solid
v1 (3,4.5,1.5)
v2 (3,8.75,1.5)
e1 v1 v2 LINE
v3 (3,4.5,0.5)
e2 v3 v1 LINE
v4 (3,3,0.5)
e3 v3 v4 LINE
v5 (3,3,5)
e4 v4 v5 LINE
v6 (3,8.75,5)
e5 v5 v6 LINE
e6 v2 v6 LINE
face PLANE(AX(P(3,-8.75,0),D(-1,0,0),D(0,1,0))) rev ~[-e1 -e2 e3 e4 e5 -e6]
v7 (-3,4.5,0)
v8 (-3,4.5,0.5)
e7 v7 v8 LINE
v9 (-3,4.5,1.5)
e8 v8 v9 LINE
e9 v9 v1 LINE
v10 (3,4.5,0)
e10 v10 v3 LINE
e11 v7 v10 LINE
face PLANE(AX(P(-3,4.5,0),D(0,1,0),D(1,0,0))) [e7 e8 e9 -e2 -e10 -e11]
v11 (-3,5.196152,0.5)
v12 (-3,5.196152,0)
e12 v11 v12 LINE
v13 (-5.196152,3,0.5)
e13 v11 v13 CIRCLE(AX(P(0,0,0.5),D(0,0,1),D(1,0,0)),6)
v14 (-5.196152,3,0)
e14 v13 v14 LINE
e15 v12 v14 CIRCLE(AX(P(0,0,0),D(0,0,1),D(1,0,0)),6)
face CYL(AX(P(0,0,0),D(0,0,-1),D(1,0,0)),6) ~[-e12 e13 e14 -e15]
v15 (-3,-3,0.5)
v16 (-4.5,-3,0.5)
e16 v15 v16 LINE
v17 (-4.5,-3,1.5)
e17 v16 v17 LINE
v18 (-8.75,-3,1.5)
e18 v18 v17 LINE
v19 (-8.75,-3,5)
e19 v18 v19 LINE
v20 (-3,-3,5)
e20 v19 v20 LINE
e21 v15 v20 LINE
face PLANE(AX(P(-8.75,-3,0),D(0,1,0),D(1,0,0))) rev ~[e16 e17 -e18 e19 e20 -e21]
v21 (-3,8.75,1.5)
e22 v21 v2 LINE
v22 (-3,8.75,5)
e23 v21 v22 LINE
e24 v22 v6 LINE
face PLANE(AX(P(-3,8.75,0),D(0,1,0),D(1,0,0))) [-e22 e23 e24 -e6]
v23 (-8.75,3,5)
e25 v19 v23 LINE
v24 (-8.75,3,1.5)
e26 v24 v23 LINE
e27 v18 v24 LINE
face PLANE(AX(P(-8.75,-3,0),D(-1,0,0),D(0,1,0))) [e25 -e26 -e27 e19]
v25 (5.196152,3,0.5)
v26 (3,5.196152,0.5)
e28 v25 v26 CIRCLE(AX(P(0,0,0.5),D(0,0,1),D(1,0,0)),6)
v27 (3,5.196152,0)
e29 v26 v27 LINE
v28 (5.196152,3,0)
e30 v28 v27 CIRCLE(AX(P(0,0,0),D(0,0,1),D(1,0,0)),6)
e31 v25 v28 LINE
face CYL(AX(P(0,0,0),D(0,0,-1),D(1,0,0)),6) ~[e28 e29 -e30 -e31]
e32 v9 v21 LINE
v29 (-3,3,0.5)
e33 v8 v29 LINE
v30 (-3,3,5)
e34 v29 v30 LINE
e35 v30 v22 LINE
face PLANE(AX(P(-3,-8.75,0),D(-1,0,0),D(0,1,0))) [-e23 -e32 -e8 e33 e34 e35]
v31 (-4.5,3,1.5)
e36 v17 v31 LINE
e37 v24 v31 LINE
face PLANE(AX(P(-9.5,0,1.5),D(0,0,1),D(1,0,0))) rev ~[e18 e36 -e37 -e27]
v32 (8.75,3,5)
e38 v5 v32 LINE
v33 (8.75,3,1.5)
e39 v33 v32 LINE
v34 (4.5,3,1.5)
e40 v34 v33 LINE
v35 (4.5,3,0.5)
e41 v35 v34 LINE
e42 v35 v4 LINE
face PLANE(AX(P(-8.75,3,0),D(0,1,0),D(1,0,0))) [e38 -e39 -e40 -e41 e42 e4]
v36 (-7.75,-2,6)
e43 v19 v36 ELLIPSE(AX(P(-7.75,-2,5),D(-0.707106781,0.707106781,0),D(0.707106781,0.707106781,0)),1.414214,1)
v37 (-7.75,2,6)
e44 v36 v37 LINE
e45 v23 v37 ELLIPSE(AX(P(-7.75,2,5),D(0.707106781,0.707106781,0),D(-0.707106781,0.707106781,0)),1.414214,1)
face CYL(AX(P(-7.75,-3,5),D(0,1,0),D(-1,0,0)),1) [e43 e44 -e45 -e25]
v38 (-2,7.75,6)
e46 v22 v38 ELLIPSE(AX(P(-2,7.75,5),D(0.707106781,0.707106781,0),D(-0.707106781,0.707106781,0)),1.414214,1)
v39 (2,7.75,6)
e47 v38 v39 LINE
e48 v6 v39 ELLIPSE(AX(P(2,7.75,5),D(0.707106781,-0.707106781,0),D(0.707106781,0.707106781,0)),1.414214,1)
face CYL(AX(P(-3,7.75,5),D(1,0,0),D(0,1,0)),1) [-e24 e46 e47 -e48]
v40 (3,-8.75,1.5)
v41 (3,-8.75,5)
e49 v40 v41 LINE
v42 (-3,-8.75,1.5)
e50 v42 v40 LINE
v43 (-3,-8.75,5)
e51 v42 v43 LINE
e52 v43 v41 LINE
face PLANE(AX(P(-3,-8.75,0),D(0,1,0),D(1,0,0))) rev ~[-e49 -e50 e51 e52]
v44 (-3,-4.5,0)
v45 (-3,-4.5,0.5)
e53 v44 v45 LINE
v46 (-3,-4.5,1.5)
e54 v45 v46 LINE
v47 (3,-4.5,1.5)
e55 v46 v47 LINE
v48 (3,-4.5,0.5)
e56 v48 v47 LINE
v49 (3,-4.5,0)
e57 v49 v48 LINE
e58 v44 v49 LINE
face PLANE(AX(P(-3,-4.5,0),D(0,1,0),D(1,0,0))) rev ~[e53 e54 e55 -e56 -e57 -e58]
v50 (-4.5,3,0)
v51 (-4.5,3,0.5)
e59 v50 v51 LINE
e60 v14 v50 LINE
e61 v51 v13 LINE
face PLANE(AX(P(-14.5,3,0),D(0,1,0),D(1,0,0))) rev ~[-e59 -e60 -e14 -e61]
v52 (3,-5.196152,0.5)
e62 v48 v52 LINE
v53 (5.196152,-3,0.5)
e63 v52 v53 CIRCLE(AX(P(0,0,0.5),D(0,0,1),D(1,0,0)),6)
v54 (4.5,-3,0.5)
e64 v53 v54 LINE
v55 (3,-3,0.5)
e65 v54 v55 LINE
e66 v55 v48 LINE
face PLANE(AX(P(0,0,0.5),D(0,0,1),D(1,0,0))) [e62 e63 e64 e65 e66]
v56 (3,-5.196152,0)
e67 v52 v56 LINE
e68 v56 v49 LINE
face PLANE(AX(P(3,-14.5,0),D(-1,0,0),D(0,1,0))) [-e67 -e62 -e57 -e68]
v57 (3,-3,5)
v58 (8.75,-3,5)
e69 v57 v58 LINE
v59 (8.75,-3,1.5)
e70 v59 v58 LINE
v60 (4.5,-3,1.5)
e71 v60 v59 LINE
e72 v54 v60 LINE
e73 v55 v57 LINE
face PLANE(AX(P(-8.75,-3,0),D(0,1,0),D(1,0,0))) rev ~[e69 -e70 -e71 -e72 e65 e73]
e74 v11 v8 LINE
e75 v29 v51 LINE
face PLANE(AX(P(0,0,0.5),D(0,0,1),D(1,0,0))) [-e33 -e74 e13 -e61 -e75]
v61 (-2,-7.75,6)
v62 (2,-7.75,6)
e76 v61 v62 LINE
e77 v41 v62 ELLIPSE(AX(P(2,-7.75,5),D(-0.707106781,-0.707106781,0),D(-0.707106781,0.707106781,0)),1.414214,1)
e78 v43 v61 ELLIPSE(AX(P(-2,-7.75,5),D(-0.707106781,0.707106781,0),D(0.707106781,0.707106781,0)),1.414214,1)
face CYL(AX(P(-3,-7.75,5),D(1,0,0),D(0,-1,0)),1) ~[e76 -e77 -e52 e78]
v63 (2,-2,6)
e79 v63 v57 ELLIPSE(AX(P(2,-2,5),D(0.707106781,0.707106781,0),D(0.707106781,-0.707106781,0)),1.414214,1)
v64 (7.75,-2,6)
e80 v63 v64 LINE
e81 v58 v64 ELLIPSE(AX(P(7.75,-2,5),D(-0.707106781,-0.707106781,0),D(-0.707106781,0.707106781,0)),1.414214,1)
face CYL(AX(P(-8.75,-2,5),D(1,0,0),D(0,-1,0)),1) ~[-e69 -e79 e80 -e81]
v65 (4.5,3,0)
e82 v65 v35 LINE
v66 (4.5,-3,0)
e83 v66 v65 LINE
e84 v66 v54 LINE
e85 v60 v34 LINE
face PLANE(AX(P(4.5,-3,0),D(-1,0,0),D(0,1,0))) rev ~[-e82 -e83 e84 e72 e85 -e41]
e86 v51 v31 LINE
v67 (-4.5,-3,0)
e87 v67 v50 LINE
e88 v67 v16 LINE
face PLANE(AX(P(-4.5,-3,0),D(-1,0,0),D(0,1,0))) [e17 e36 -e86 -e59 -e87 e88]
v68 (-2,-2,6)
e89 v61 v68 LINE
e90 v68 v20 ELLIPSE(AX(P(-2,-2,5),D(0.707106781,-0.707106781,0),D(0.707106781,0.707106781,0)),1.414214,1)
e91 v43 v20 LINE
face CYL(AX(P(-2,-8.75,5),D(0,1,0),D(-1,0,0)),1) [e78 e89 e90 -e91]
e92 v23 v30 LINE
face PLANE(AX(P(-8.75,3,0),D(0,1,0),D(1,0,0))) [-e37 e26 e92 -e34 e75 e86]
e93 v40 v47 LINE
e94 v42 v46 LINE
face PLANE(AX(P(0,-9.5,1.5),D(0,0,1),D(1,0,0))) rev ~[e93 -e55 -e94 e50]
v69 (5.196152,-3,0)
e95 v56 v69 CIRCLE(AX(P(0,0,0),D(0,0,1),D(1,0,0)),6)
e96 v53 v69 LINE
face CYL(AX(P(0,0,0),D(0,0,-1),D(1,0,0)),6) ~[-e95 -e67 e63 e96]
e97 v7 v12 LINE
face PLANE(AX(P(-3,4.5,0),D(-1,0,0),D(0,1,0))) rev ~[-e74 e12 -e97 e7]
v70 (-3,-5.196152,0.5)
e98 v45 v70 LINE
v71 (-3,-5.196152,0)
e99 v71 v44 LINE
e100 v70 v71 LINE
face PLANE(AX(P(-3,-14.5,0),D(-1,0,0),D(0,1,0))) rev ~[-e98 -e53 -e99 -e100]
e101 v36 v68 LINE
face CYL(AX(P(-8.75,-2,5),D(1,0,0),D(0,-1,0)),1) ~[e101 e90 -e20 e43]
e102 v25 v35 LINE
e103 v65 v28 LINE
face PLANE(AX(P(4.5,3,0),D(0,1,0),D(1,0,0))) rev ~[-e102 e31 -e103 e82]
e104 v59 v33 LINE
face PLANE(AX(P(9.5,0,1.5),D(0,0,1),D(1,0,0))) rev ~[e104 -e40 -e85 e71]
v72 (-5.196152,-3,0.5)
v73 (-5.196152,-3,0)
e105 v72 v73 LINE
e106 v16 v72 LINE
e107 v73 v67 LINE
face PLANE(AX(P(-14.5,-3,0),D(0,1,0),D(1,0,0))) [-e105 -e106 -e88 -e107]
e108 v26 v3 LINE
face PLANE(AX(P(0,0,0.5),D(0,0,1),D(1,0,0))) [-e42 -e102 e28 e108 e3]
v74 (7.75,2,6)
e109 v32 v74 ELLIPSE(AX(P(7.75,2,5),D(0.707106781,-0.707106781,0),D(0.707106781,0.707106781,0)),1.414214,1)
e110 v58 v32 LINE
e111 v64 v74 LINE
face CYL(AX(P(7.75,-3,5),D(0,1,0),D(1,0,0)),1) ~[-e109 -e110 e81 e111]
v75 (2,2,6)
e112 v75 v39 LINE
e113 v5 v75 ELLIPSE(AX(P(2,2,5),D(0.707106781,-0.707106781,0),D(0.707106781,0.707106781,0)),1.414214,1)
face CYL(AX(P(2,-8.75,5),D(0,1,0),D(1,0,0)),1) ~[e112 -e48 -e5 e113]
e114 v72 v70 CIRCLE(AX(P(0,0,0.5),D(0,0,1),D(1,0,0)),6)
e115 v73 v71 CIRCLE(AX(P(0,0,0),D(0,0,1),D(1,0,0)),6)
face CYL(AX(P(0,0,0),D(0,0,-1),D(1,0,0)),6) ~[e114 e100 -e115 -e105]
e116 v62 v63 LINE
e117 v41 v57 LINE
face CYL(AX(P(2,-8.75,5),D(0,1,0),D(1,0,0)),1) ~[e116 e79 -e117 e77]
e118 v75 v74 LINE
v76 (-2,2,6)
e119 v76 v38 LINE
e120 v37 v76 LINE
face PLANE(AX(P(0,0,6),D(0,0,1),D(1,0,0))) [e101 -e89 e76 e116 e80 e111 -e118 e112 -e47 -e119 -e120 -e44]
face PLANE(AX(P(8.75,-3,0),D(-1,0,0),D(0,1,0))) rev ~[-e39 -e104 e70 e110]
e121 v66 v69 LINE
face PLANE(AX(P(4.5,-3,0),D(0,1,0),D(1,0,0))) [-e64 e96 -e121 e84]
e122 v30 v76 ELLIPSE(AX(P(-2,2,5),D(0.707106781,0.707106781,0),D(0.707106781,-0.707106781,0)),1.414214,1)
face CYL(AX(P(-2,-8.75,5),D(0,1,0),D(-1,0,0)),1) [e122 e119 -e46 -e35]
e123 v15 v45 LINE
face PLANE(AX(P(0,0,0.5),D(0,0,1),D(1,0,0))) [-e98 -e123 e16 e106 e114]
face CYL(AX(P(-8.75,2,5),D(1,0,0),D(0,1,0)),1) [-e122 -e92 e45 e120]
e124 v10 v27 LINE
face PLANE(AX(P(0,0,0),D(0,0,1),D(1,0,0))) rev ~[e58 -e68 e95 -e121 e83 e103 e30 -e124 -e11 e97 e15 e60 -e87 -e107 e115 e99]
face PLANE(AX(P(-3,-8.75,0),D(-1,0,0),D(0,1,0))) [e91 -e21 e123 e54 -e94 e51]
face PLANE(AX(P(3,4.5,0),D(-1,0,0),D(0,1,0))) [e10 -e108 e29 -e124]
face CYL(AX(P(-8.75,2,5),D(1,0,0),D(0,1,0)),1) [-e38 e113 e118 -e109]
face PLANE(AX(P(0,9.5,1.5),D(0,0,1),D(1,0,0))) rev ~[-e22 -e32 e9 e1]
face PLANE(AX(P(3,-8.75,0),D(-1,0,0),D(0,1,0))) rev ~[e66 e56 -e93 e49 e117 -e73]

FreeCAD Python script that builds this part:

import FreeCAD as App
import Part
import Sketcher

V = App.Vector
Q = App.Units.Quantity


def edges_at(feature, points):
    """Names of the edges that pass closest to the given points."""
    edges = feature.Shape.Edges
    near = lambda p: min(range(len(edges)), key=lambda i: edges[i].distToShape(Part.Vertex(*p))[0])
    return sorted({f"Edge{near(p) + 1}" for p in points})

doc = App.newDocument("Part")
body = doc.addObject("PartDesign::Body", "Body")

# Sketch on XY plane
sketch1 = body.newObject("Sketcher::SketchObject", "Sketch")
sketch1.AttachmentSupport = (doc.getObject("XY_Plane"), [""])
sketch1.MapMode = "FlatFace"
sketch1.addGeometry([
    Part.LineSegment(V(4, 3, 0), V(4, -3, 0)),
    Part.LineSegment(V(4, -3, 0), V(14, -3, 0)),
    Part.LineSegment(V(14, -3, 0), V(14, 3, 0)),
    Part.LineSegment(V(14, 3, 0), V(4, 3, 0)),
], False)
sketch1.addConstraint([
    Sketcher.Constraint("Coincident", 0, 2, 1, 1),
    Sketcher.Constraint("Coincident", 1, 2, 2, 1),
    Sketcher.Constraint("Coincident", 2, 2, 3, 1),
    Sketcher.Constraint("Coincident", 3, 2, 0, 1),
    Sketcher.Constraint("Vertical", 0),
    Sketcher.Constraint("Horizontal", 1),
    Sketcher.Constraint("Vertical", 2),
    Sketcher.Constraint("Horizontal", 3),
    Sketcher.Constraint("DistanceX", 1, 1, 1, 2, Q("10 mm")),
    Sketcher.Constraint("DistanceY", 0, 2, 0, 1, Q("6 mm")),
    Sketcher.Constraint("DistanceY", 0, 2, -1, 1, Q("3 mm")),
    Sketcher.Constraint("DistanceX", -1, 1, 0, 2, Q("4.5 mm")),
])
pad1 = body.newObject("PartDesign::Pad", "Pad")
pad1.Profile = sketch1
pad1.Length = 1.5
body2 = doc.addObject("PartDesign::Body", "Body001")

# Sketch on XY plane
sketch2 = body2.newObject("Sketcher::SketchObject", "Sketch001")
sketch2.AttachmentSupport = (doc.getObject("XY_Plane001"), [""])
sketch2.MapMode = "FlatFace"
sketch2.addGeometry([
    Part.LineSegment(V(-14, 3, 0), V(-14, -3, 0)),
    Part.LineSegment(V(-14, -3, 0), V(-4, -3, 0)),
    Part.LineSegment(V(-4, -3, 0), V(-4, 3, 0)),
    Part.LineSegment(V(-4, 3, 0), V(-14, 3, 0)),
], False)
sketch2.addConstraint([
    Sketcher.Constraint("Coincident", 0, 2, 1, 1),
    Sketcher.Constraint("Coincident", 1, 2, 2, 1),
    Sketcher.Constraint("Coincident", 2, 2, 3, 1),
    Sketcher.Constraint("Coincident", 3, 2, 0, 1),
    Sketcher.Constraint("Vertical", 0),
    Sketcher.Constraint("Horizontal", 1),
    Sketcher.Constraint("Vertical", 2),
    Sketcher.Constraint("Horizontal", 3),
    Sketcher.Constraint("DistanceX", 1, 1, 1, 2, Q("10 mm")),
    Sketcher.Constraint("DistanceY", 0, 2, 0, 1, Q("6 mm")),
    Sketcher.Constraint("DistanceY", 0, 2, -1, 1, Q("3 mm")),
    Sketcher.Constraint("DistanceX", 0, 2, -1, 1, Q("14.5 mm")),
])
pad2 = body2.newObject("PartDesign::Pad", "Pad001")
pad2.Profile = sketch2
pad2.Length = 1.5
body3 = doc.addObject("PartDesign::Body", "Body002")

# Sketch on XY plane
sketch3 = body3.newObject("Sketcher::SketchObject", "Sketch002")
sketch3.AttachmentSupport = (doc.getObject("XY_Plane002"), [""])
sketch3.MapMode = "FlatFace"
sketch3.addGeometry([
    Part.LineSegment(V(-3, 14, 0), V(-3, 4, 0)),
    Part.LineSegment(V(-3, 4, 0), V(3, 4, 0)),
    Part.LineSegment(V(3, 4, 0), V(3, 14, 0)),
    Part.LineSegment(V(3, 14, 0), V(-3, 14, 0)),
], False)
sketch3.addConstraint([
    Sketcher.Constraint("Coincident", 0, 2, 1, 1),
    Sketcher.Constraint("Coincident", 1, 2, 2, 1),
    Sketcher.Constraint("Coincident", 2, 2, 3, 1),
    Sketcher.Constraint("Coincident", 3, 2, 0, 1),
    Sketcher.Constraint("Vertical", 0),
    Sketcher.Constraint("Horizontal", 1),
    Sketcher.Constraint("Vertical", 2),
    Sketcher.Constraint("Horizontal", 3),
    Sketcher.Constraint("DistanceX", 1, 1, 1, 2, Q("6 mm")),
    Sketcher.Constraint("DistanceY", 0, 2, 0, 1, Q("10 mm")),
    Sketcher.Constraint("DistanceX", 0, 2, -1, 1, Q("3 mm")),
    Sketcher.Constraint("DistanceY", -1, 1, 0, 2, Q("4.5 mm")),
])
pad3 = body3.newObject("PartDesign::Pad", "Pad002")
pad3.Profile = sketch3
pad3.Length = 1.5
body4 = doc.addObject("PartDesign::Body", "Body003")

# Sketch on XY plane
sketch4 = body4.newObject("Sketcher::SketchObject", "Sketch003")
sketch4.AttachmentSupport = (doc.getObject("XY_Plane003"), [""])
sketch4.MapMode = "FlatFace"
sketch4.addGeometry([
    Part.LineSegment(V(-3, -4, 0), V(-3, -14, 0)),
    Part.LineSegment(V(-3, -14, 0), V(3, -14, 0)),
    Part.LineSegment(V(3, -14, 0), V(3, -4, 0)),
    Part.LineSegment(V(3, -4, 0), V(-3, -4, 0)),
], False)
sketch4.addConstraint([
    Sketcher.Constraint("Coincident", 0, 2, 1, 1),
    Sketcher.Constraint("Coincident", 1, 2, 2, 1),
    Sketcher.Constraint("Coincident", 2, 2, 3, 1),
    Sketcher.Constraint("Coincident", 3, 2, 0, 1),
    Sketcher.Constraint("Vertical", 0),
    Sketcher.Constraint("Horizontal", 1),
    Sketcher.Constraint("Vertical", 2),
    Sketcher.Constraint("Horizontal", 3),
    Sketcher.Constraint("DistanceX", 1, 1, 1, 2, Q("6 mm")),
    Sketcher.Constraint("DistanceY", 0, 2, 0, 1, Q("10 mm")),
    Sketcher.Constraint("DistanceX", 0, 2, -1, 1, Q("3 mm")),
    Sketcher.Constraint("DistanceY", 0, 2, -1, 1, Q("14.5 mm")),
])
pad4 = body4.newObject("PartDesign::Pad", "Pad003")
pad4.Profile = sketch4
pad4.Length = 1.5
body5 = doc.addObject("PartDesign::Body", "Body004")

# Sketch on XY plane
sketch5 = body5.newObject("Sketcher::SketchObject", "Sketch004")
sketch5.AttachmentSupport = (doc.getObject("XY_Plane004"), [""])
sketch5.MapMode = "FlatFace"
sketch5.addGeometry([
    Part.LineSegment(V(-3, 9, 0), V(-3, -9, 0)),
    Part.LineSegment(V(-3, -9, 0), V(3, -9, 0)),
    Part.LineSegment(V(3, -9, 0), V(3, 9, 0)),
    Part.LineSegment(V(3, 9, 0), V(-3, 9, 0)),
], False)
sketch5.addConstraint([
    Sketcher.Constraint("Coincident", 0, 2, 1, 1),
    Sketcher.Constraint("Coincident", 1, 2, 2, 1),
    Sketcher.Constraint("Coincident", 2, 2, 3, 1),
    Sketcher.Constraint("Coincident", 3, 2, 0, 1),
    Sketcher.Constraint("Vertical", 0),
    Sketcher.Constraint("Horizontal", 1),
    Sketcher.Constraint("Vertical", 2),
    Sketcher.Constraint("Horizontal", 3),
    Sketcher.Constraint("Symmetric", 0, 2, 2, 2, -1, 1),
    Sketcher.Constraint("DistanceX", 1, 1, 1, 2, Q("6 mm")),
    Sketcher.Constraint("DistanceY", 0, 2, 0, 1, Q("17.5 mm")),
])
pad5 = body5.newObject("PartDesign::Pad", "Pad004")
pad5.Profile = sketch5
pad5.Length = 6
doc.recompute()

fillet = body5.newObject("PartDesign::Fillet", "Fillet")
fillet.Base = (pad5, edges_at(pad5, [
    (-3, 0, 6),
    (3, 0, 6),
    (0, -8.75, 6),
    (0, 8.75, 6),
]))
fillet.Radius = 1
body6 = doc.addObject("PartDesign::Body", "Body005")

# Sketch on XY plane
sketch6 = body6.newObject("Sketcher::SketchObject", "Sketch005")
sketch6.AttachmentSupport = (doc.getObject("XY_Plane005"), [""])
sketch6.MapMode = "FlatFace"
sketch6.addGeometry([
    Part.LineSegment(V(-9, 3, 0), V(-9, -3, 0)),
    Part.LineSegment(V(-9, -3, 0), V(9, -3, 0)),
    Part.LineSegment(V(9, -3, 0), V(9, 3, 0)),
    Part.LineSegment(V(9, 3, 0), V(-9, 3, 0)),
], False)
sketch6.addConstraint([
    Sketcher.Constraint("Coincident", 0, 2, 1, 1),
    Sketcher.Constraint("Coincident", 1, 2, 2, 1),
    Sketcher.Constraint("Coincident", 2, 2, 3, 1),
    Sketcher.Constraint("Coincident", 3, 2, 0, 1),
    Sketcher.Constraint("Vertical", 0),
    Sketcher.Constraint("Horizontal", 1),
    Sketcher.Constraint("Vertical", 2),
    Sketcher.Constraint("Horizontal", 3),
    Sketcher.Constraint("Symmetric", 0, 2, 2, 2, -1, 1),
    Sketcher.Constraint("DistanceY", 0, 2, 0, 1, Q("6 mm")),
    Sketcher.Constraint("DistanceX", 1, 1, 1, 2, Q("17.5 mm")),
])
pad6 = body6.newObject("PartDesign::Pad", "Pad005")
pad6.Profile = sketch6
pad6.Length = 6
doc.recompute()

fillet2 = body6.newObject("PartDesign::Fillet", "Fillet001")
fillet2.Base = (pad6, edges_at(pad6, [
    (-8.75, 0, 6),
    (8.75, 0, 6),
    (0, -3, 6),
    (0, 3, 6),
]))
fillet2.Radius = 1
doc.recompute()

boolean = body6.newObject("PartDesign::Boolean", "Boolean")
boolean.Type = "Fuse"
boolean.addObjects([body5])
body7 = doc.addObject("PartDesign::Body", "Body006")

# Sketch on XY plane
sketch7 = body7.newObject("Sketcher::SketchObject", "Sketch006")
sketch7.AttachmentSupport = (doc.getObject("XY_Plane006"), [""])
sketch7.MapMode = "FlatFace"
sketch7.addGeometry(Part.Circle(V(0, 0, 0), V(0, 0, 1), 6), False)
sketch7.addConstraint([
    Sketcher.Constraint("Coincident", 0, 3, -1, 1),
    Sketcher.Constraint("Diameter", 0, Q("12 mm")),
])
pad7 = body7.newObject("PartDesign::Pad", "Pad006")
pad7.Profile = sketch7
pad7.Length = 0.5
doc.recompute()

boolean2 = body7.newObject("PartDesign::Boolean", "Boolean001")
boolean2.Type = "Fuse"
boolean2.addObjects([body6])
doc.recompute()

boolean3 = body7.newObject("PartDesign::Boolean", "Boolean002")
boolean3.Type = "Cut"
boolean3.addObjects([body4])
doc.recompute()

boolean4 = body7.newObject("PartDesign::Boolean", "Boolean003")
boolean4.Type = "Cut"
boolean4.addObjects([body3])
doc.recompute()

boolean5 = body7.newObject("PartDesign::Boolean", "Boolean004")
boolean5.Type = "Cut"
boolean5.addObjects([body2])
doc.recompute()

boolean6 = body7.newObject("PartDesign::Boolean", "Boolean005")
boolean6.Type = "Cut"
boolean6.addObjects([body])

doc.recompute()
